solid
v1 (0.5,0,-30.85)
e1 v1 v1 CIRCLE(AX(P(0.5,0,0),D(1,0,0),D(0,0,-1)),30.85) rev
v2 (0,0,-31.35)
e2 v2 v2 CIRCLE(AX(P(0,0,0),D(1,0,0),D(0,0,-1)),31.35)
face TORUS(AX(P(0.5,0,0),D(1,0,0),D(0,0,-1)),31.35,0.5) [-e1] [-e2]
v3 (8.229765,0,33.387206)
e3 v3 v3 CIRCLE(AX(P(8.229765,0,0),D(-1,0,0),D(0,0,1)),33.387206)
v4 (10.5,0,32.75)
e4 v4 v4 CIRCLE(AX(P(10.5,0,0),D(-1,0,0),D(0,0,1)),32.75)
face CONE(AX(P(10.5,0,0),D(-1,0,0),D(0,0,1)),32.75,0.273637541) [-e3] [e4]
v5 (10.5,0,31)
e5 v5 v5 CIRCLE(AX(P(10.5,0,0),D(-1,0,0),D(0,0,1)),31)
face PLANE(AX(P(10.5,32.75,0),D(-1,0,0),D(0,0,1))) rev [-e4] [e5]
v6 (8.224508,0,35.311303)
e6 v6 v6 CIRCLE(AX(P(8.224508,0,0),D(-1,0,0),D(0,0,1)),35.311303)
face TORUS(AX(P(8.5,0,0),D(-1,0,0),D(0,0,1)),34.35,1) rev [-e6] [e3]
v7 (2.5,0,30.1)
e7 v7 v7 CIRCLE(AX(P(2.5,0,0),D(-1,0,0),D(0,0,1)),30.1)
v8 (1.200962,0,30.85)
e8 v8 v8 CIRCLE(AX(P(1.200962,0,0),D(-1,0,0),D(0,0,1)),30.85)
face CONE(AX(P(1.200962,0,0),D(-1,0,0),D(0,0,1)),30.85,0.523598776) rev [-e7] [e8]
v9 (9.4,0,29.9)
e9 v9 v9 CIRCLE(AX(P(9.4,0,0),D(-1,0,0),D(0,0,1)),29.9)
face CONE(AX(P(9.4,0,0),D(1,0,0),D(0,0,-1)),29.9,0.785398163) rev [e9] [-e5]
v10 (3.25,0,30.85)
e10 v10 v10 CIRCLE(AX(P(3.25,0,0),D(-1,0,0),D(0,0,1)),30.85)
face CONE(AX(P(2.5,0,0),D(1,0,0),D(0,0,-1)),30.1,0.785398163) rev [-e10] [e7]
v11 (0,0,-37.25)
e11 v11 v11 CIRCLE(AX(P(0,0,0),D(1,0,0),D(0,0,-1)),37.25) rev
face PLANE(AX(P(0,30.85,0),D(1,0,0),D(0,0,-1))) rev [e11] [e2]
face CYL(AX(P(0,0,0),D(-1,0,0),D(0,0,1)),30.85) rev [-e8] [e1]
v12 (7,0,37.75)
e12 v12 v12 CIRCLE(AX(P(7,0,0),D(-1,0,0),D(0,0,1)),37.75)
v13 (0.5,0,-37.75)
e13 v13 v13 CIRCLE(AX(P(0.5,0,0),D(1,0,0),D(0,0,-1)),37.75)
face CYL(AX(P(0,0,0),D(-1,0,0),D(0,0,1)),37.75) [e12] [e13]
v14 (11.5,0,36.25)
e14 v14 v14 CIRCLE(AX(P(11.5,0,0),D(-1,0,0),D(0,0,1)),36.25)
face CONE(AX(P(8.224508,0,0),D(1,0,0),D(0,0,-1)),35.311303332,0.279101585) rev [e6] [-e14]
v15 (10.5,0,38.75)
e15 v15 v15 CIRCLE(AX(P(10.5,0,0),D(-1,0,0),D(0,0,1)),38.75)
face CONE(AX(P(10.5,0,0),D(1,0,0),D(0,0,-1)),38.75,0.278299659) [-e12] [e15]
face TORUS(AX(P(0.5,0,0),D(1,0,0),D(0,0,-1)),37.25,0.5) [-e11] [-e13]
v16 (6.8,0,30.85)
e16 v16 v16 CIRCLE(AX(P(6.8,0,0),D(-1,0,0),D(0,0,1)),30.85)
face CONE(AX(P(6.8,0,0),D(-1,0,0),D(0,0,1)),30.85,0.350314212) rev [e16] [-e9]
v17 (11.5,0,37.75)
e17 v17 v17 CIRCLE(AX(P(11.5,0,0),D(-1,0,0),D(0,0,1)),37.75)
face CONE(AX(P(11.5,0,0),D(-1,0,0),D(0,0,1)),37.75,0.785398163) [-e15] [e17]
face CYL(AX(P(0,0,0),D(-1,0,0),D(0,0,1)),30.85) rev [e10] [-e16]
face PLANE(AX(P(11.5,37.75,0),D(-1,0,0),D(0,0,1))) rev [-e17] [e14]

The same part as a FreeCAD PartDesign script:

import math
import FreeCAD as App
import Part
import Sketcher
Q = App.Units.Quantity


def edges_at(feature, points):
    """Names of the edges that pass closest to the given points."""
    edges = feature.Shape.Edges
    near = lambda p: min(range(len(edges)), key=lambda i: edges[i].distToShape(Part.Vertex(*p))[0])
    return sorted({f"Edge{near(p) + 1}" for p in points})

doc = App.newDocument("Part")
body = doc.addObject("PartDesign::Body", "Body")

# Sketch on XY plane
sketch1 = body.newObject("Sketcher::SketchObject", "Sketch")
sketch1.AttachmentSupport = (doc.getObject("XY_Plane"), [""])
sketch1.MapMode = "FlatFace"
sketch1.addGeometry([
    Part.LineSegment(App.Vector(0, 37.75, 0), App.Vector(0, 30.85, 0)),  # 0
    Part.LineSegment(App.Vector(0, 30.85, 0), App.Vector(1.200962, 30.85, 0)),  # 1
    Part.LineSegment(App.Vector(1.200962, 30.85, 0), App.Vector(2.5, 30.1, 0)),  # 2
    Part.LineSegment(App.Vector(2.5, 30.1, 0), App.Vector(3.25, 30.85, 0)),  # 3
    Part.LineSegment(App.Vector(3.25, 30.85, 0), App.Vector(6.8, 30.85, 0)),  # 4
    Part.LineSegment(App.Vector(6.8, 30.85, 0), App.Vector(9.4, 29.9, 0)),  # 5
    Part.LineSegment(App.Vector(9.4, 29.9, 0), App.Vector(10.5, 31, 0)),  # 6
    Part.LineSegment(App.Vector(10.5, 31, 0), App.Vector(10.5, 32.75, 0)),  # 7
    Part.LineSegment(App.Vector(10.5, 32.75, 0), App.Vector(8.229765, 33.387206, 0)),  # 8
    Part.ArcOfCircle(Part.Circle(App.Vector(8.5, 34.35, 0), App.Vector(0, 0, 1), 1), math.radians(105.991343), math.radians(254.321724)),  # 9
    Part.LineSegment(App.Vector(8.224508, 35.311303, 0), App.Vector(11.5, 36.25, 0)),  # 10
    Part.LineSegment(App.Vector(11.5, 36.25, 0), App.Vector(11.5, 37.75, 0)),  # 11
    Part.LineSegment(App.Vector(11.5, 37.75, 0), App.Vector(10.5, 38.75, 0)),  # 12
    Part.LineSegment(App.Vector(10.5, 38.75, 0), App.Vector(7, 37.75, 0)),  # 13
    Part.LineSegment(App.Vector(7, 37.75, 0), App.Vector(0, 37.75, 0)),  # 14
], False)
sketch1.addConstraint([
    Sketcher.Constraint("Coincident", 0, 2, 1, 1),
    Sketcher.Constraint("Coincident", 1, 2, 2, 1),
    Sketcher.Constraint("Coincident", 2, 2, 3, 1),
    Sketcher.Constraint("Coincident", 3, 2, 4, 1),
    Sketcher.Constraint("Coincident", 4, 2, 5, 1),
    Sketcher.Constraint("Coincident", 5, 2, 6, 1),
    Sketcher.Constraint("Coincident", 6, 2, 7, 1),
    Sketcher.Constraint("Coincident", 7, 2, 8, 1),
    Sketcher.Constraint("Tangent", 8, 2, 9, 2),
    Sketcher.Constraint("Tangent", 9, 1, 10, 1),
    Sketcher.Constraint("Coincident", 10, 2, 11, 1),
    Sketcher.Constraint("Coincident", 11, 2, 12, 1),
    Sketcher.Constraint("Coincident", 12, 2, 13, 1),
    Sketcher.Constraint("Coincident", 13, 2, 14, 1),
    Sketcher.Constraint("Coincident", 14, 2, 0, 1),
    Sketcher.Constraint("Vertical", 0),
    Sketcher.Constraint("Horizontal", 1),
    Sketcher.Constraint("Horizontal", 4),
    Sketcher.Constraint("Vertical", 7),
    Sketcher.Constraint("Vertical", 11),
    Sketcher.Constraint("Horizontal", 14),
    Sketcher.Constraint("PointOnObject", 0, 2, -2),
    Sketcher.Constraint("Parallel", 3, 6),
    Sketcher.Constraint("Perpendicular", 6, 12),
    Sketcher.Constraint("Horizontal", 1, 2, 3, 2),
    Sketcher.Constraint("Horizontal", 11, 2, 13, 2),
    Sketcher.Constraint("Vertical", 7, 2, 12, 2),
    Sketcher.Constraint("Radius", 9, 1.0),
    Sketcher.Constraint("DistanceX", 14, 2, 14, 1, 7.0),
    Sketcher.Constraint("Angle", 2, Q("-30 deg")),
    Sketcher.Constraint("Angle", 3, Q("45 deg")),
    Sketcher.Constraint("DistanceY", 0, 2, 0, 1, 6.9),
    Sketcher.Constraint("DistanceY", 11, 1, 11, 2, 1.5),
    Sketcher.Constraint("DistanceY", -1, 1, 6, 2, 31.0),
    Sketcher.Constraint("DistanceX", 2, 2, 9, 3, 6.0),
    Sketcher.Constraint("DistanceX", 9, 3, 6, 2, 2.0),
    Sketcher.Constraint("DistanceX", 9, 3, 10, 2, 3.0),
    Sketcher.Constraint("DistanceY", 7, 2, 11, 2, 5.0),
    Sketcher.Constraint("Distance", 2, 1.5),
    Sketcher.Constraint("DistanceX", 4, 1, 4, 2, 3.55),
    Sketcher.Constraint("DistanceY", 7, 1, 7, 2, 1.75),
    Sketcher.Constraint("DistanceX", -1, 1, 9, 3, 8.5),
    Sketcher.Constraint("DistanceX", -1, 1, 5, 2, 9.4),
    Sketcher.Constraint("DistanceY", 0, 2, 9, 3, 3.5),
])
revolution = body.newObject("PartDesign::Revolution", "Revolution")
revolution.Profile = sketch1
revolution.ReferenceAxis = (sketch1, ["H_Axis"])
revolution.Angle = 360
doc.recompute()

fillet = body.newObject("PartDesign::Fillet", "Fillet")
fillet.Base = (revolution, edges_at(revolution, [(0, 0, -30.85), (0, 0, -37.75)]))
fillet.Radius = 0.5

doc.recompute()
